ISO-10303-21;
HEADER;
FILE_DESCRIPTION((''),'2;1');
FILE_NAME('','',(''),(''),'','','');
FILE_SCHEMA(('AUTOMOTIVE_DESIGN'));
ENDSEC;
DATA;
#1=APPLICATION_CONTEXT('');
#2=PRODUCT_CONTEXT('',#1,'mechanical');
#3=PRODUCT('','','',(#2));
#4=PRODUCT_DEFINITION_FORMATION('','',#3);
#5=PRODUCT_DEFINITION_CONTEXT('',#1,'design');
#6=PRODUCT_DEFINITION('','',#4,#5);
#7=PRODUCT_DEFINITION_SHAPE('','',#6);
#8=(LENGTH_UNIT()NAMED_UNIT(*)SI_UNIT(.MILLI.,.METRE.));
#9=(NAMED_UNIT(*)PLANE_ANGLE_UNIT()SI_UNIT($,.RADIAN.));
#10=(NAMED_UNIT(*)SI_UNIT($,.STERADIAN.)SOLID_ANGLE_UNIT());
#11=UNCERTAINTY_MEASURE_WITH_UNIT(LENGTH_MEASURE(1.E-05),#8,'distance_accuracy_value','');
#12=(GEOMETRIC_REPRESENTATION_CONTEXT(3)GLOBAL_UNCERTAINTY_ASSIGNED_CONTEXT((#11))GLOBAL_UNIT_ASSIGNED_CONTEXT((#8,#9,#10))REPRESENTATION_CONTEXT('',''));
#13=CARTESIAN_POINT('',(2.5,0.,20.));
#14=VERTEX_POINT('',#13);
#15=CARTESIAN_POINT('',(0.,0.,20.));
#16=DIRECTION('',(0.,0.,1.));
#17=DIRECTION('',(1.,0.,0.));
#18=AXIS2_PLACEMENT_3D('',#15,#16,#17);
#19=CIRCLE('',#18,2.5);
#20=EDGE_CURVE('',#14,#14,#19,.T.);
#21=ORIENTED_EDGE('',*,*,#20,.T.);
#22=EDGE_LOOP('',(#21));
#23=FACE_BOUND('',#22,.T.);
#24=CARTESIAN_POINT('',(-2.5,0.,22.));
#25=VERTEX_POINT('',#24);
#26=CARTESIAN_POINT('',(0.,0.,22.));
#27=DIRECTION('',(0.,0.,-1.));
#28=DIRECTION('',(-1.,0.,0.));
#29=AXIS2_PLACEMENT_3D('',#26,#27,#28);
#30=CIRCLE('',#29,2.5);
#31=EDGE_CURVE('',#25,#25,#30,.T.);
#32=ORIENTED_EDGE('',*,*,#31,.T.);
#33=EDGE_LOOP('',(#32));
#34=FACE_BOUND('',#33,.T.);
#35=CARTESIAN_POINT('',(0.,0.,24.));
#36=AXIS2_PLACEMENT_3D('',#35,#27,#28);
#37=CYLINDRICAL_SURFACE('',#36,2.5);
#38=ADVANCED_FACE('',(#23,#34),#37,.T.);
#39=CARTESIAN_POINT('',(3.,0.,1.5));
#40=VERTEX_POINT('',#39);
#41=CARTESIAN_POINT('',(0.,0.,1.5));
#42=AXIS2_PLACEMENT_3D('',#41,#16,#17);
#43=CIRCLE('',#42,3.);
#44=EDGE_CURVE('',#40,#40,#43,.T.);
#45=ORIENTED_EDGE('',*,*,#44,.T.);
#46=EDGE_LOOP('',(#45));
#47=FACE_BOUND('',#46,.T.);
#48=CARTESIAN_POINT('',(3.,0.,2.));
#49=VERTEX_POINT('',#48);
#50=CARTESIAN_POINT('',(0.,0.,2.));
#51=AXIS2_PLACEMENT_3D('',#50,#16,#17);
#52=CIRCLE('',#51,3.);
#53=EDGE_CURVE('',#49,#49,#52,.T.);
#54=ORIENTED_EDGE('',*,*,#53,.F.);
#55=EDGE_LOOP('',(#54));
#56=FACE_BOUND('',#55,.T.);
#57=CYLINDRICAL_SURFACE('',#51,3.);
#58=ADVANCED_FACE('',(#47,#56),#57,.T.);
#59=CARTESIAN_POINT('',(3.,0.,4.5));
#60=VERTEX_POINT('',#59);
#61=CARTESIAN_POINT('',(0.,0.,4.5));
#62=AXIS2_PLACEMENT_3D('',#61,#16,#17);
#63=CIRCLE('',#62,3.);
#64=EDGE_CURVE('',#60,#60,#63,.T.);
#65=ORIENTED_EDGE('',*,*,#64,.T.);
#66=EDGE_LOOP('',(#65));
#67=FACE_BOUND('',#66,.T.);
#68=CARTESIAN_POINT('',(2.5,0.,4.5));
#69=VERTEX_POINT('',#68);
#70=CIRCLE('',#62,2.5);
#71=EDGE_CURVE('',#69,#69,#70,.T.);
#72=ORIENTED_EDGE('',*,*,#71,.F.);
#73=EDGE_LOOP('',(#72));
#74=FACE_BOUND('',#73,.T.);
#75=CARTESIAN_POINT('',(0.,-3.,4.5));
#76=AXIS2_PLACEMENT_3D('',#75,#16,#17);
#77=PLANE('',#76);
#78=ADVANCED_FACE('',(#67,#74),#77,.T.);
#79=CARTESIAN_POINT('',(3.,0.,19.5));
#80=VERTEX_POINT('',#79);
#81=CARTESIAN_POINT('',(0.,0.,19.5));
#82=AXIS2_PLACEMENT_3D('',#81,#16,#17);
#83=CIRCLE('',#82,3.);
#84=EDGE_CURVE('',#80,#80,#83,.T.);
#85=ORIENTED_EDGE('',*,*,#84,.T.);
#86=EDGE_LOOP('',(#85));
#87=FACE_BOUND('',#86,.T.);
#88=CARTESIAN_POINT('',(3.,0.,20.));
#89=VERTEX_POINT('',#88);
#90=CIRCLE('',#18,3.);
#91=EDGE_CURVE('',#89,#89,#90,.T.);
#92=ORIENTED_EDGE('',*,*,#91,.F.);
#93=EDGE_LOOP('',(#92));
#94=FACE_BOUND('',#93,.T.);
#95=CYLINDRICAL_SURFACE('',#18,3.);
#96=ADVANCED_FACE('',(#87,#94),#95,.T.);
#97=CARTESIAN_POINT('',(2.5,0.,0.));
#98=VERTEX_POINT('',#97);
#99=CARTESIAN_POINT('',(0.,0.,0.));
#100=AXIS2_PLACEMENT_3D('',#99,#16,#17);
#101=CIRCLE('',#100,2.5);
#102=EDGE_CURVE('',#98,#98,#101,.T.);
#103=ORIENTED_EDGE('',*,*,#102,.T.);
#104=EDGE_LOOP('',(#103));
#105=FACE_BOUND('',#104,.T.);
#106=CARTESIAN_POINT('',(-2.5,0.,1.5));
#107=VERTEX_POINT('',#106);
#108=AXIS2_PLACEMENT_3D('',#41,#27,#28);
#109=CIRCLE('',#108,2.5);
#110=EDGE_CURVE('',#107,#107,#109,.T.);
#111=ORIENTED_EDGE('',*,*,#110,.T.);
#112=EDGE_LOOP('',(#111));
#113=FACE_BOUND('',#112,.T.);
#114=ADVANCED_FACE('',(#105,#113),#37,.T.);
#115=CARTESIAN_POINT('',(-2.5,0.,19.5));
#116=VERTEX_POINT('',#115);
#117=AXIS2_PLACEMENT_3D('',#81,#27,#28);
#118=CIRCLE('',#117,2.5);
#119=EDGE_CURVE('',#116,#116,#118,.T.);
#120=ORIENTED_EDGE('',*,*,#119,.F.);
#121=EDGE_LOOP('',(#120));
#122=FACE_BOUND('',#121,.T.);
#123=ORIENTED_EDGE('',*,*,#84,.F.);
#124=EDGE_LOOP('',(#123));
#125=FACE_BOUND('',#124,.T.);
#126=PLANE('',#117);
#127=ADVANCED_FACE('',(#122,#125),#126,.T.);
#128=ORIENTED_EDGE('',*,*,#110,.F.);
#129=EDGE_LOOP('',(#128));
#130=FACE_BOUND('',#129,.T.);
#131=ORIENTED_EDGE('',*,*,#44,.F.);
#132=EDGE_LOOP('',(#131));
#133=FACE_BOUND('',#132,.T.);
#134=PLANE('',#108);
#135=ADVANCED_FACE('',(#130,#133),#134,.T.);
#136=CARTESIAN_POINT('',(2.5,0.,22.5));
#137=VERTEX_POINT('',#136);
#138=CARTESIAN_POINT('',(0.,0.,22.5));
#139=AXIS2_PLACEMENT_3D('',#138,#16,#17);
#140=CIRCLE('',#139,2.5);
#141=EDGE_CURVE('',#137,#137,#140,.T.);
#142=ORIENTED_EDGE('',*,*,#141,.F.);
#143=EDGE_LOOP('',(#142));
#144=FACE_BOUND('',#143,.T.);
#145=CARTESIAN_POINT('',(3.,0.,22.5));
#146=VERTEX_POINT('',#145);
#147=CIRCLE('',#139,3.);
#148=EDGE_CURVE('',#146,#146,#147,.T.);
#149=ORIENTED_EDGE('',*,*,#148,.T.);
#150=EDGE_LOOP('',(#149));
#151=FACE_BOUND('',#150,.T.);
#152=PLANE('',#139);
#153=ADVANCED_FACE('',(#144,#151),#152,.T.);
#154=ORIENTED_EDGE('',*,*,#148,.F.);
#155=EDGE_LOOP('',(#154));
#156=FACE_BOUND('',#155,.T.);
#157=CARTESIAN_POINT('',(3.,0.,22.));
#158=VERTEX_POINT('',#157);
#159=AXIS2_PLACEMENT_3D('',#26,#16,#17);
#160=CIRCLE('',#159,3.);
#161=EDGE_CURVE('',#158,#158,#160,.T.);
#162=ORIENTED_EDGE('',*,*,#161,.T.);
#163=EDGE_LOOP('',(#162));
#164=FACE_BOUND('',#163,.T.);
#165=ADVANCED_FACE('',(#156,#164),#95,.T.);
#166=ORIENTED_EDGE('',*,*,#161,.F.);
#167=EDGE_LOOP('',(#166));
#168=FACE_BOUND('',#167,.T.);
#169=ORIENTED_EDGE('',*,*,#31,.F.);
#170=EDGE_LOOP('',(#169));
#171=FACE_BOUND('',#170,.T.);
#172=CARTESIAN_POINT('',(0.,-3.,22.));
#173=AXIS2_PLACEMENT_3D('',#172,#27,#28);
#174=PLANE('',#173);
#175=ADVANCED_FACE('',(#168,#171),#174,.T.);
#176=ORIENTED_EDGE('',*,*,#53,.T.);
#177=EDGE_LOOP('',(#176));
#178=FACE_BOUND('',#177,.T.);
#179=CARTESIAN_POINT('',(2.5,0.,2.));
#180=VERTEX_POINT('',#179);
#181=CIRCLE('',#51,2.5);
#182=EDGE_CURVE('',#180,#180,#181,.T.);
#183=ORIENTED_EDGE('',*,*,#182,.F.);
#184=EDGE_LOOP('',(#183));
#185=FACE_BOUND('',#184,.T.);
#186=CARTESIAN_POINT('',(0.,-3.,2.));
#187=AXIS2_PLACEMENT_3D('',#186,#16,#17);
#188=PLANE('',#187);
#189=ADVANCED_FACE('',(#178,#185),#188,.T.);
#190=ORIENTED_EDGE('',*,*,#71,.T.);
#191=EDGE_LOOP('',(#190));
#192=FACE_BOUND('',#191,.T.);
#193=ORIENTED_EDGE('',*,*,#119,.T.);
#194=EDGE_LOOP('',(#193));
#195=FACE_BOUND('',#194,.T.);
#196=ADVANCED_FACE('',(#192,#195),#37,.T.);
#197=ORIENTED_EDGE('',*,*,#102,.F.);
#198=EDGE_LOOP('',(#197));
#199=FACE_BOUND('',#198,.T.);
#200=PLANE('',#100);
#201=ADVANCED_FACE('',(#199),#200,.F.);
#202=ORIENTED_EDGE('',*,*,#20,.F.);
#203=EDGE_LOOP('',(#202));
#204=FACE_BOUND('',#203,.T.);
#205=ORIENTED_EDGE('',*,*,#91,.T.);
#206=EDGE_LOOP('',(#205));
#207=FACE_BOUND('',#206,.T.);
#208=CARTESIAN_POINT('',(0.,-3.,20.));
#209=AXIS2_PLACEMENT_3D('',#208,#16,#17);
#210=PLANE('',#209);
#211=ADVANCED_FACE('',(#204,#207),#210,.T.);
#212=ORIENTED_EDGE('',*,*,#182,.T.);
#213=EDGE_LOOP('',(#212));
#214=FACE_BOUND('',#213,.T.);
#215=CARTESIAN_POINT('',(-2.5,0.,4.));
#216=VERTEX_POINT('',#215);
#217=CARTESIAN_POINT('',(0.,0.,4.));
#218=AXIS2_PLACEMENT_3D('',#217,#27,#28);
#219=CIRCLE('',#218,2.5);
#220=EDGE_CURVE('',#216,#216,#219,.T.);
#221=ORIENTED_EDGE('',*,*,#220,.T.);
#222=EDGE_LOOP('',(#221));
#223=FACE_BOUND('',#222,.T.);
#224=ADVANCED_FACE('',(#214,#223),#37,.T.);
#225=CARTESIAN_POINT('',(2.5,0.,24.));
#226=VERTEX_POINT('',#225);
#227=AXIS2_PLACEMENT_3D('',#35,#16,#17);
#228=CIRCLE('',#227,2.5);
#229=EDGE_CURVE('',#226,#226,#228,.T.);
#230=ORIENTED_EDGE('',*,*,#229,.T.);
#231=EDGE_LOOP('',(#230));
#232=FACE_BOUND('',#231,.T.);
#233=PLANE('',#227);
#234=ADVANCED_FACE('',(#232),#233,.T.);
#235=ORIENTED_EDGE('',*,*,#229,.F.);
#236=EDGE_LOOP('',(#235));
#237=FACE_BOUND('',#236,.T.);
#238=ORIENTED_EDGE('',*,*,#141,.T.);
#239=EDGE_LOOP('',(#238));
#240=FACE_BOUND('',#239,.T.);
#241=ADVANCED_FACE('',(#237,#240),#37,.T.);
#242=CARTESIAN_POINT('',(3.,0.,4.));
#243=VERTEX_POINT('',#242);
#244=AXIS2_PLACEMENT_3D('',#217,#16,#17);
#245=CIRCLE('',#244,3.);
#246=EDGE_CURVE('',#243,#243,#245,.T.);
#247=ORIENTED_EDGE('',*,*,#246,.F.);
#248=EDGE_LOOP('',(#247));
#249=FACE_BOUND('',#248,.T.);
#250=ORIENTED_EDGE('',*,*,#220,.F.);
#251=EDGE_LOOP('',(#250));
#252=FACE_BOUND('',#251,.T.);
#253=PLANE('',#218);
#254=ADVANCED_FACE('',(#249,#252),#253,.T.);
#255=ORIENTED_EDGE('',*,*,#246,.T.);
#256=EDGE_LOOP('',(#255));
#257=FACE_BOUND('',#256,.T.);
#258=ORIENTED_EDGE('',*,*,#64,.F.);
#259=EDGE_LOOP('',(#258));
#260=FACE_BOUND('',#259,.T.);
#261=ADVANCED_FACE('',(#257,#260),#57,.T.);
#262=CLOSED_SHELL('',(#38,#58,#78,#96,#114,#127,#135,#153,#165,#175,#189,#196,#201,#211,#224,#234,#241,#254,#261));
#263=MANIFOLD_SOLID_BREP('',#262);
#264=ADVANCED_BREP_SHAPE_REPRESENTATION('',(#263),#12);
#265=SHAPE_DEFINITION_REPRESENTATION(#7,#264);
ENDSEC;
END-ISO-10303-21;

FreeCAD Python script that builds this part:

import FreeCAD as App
import Part
import Sketcher

doc = App.newDocument("Part")
body = doc.addObject("PartDesign::Body", "Body")

# Sketch on XY plane
sketch1 = body.newObject("Sketcher::SketchObject", "Sketch")
sketch1.AttachmentSupport = (doc.getObject("XY_Plane"), [""])
sketch1.MapMode = "FlatFace"
sketch1.addGeometry(Part.Circle(App.Vector(0, 0, 0), App.Vector(0, 0, 1), 2.5), False)
sketch1.addConstraint([
    Sketcher.Constraint("Coincident", 0, 3, -1, 1),
    Sketcher.Constraint("Diameter", 0, 5.0),
])
pad1 = body.newObject("PartDesign::Pad", "Pad")
pad1.Profile = sketch1
pad1.Length = 24

# Sketch on YZ plane
sketch2 = body.newObject("Sketcher::SketchObject", "Sketch001")
sketch2.AttachmentSupport = (doc.getObject("YZ_Plane"), [""])
sketch2.MapMode = "FlatFace"
sketch2.addGeometry([
    Part.LineSegment(App.Vector(0, 2, 0), App.Vector(-3, 2, 0)),  # 0
    Part.LineSegment(App.Vector(-3, 2, 0), App.Vector(-3, 1.5, 0)),  # 1
    Part.LineSegment(App.Vector(-3, 1.5, 0), App.Vector(0, 1.5, 0)),  # 2
    Part.LineSegment(App.Vector(0, 1.5, 0), App.Vector(0, 2, 0)),  # 3
    Part.LineSegment(App.Vector(0, 4.5, 0), App.Vector(-3, 4.5, 0)),  # 4
    Part.LineSegment(App.Vector(-3, 4.5, 0), App.Vector(-3, 4, 0)),  # 5
    Part.LineSegment(App.Vector(-3, 4, 0), App.Vector(0, 4, 0)),  # 6
    Part.LineSegment(App.Vector(0, 4, 0), App.Vector(0, 4.5, 0)),  # 7
], False)
sketch2.addConstraint([
    Sketcher.Constraint("Coincident", 0, 2, 1, 1),
    Sketcher.Constraint("Coincident", 1, 2, 2, 1),
    Sketcher.Constraint("Coincident", 2, 2, 3, 1),
    Sketcher.Constraint("Coincident", 3, 2, 0, 1),
    Sketcher.Constraint("Coincident", 4, 2, 5, 1),
    Sketcher.Constraint("Coincident", 5, 2, 6, 1),
    Sketcher.Constraint("Coincident", 6, 2, 7, 1),
    Sketcher.Constraint("Coincident", 7, 2, 4, 1),
    Sketcher.Constraint("Horizontal", 0),
    Sketcher.Constraint("Vertical", 1),
    Sketcher.Constraint("Horizontal", 2),
    Sketcher.Constraint("Vertical", 3),
    Sketcher.Constraint("Horizontal", 4),
    Sketcher.Constraint("Vertical", 5),
    Sketcher.Constraint("Horizontal", 6),
    Sketcher.Constraint("Vertical", 7),
    Sketcher.Constraint("PointOnObject", 2, 2, -2),
    Sketcher.Constraint("PointOnObject", 6, 2, -2),
    Sketcher.Constraint("Vertical", 1, 2, 4, 2),
    Sketcher.Constraint("Equal", 3, 5),
    Sketcher.Constraint("DistanceX", 0, 2, 0, 1, 3.0),
    Sketcher.Constraint("DistanceY", 1, 2, 1, 1, 0.5),
    Sketcher.Constraint("DistanceY", -1, 1, 0, 2, 2.0),
    Sketcher.Constraint("DistanceY", -1, 1, 5, 2, 4.0),
])
revolution = body.newObject("PartDesign::Revolution", "Revolution")
revolution.Profile = sketch2
revolution.ReferenceAxis = (sketch2, ["V_Axis"])
revolution.Angle = 360

# Sketch on YZ plane
sketch3 = body.newObject("Sketcher::SketchObject", "Sketch002")
sketch3.AttachmentSupport = (doc.getObject("YZ_Plane"), [""])
sketch3.MapMode = "FlatFace"
sketch3.addGeometry([
    Part.LineSegment(App.Vector(0, 20, 0), App.Vector(-3, 20, 0)),  # 0
    Part.LineSegment(App.Vector(-3, 20, 0), App.Vector(-3, 19.5, 0)),  # 1
    Part.LineSegment(App.Vector(-3, 19.5, 0), App.Vector(0, 19.5, 0)),  # 2
    Part.LineSegment(App.Vector(0, 19.5, 0), App.Vector(0, 20, 0)),  # 3
    Part.LineSegment(App.Vector(0, 22.5, 0), App.Vector(-3, 22.5, 0)),  # 4
    Part.LineSegment(App.Vector(-3, 22.5, 0), App.Vector(-3, 22, 0)),  # 5
    Part.LineSegment(App.Vector(-3, 22, 0), App.Vector(0, 22, 0)),  # 6
    Part.LineSegment(App.Vector(0, 22, 0), App.Vector(0, 22.5, 0)),  # 7
], False)
sketch3.addConstraint([
    Sketcher.Constraint("Coincident", 0, 2, 1, 1),
    Sketcher.Constraint("Coincident", 1, 2, 2, 1),
    Sketcher.Constraint("Coincident", 2, 2, 3, 1),
    Sketcher.Constraint("Coincident", 3, 2, 0, 1),
    Sketcher.Constraint("Coincident", 4, 2, 5, 1),
    Sketcher.Constraint("Coincident", 5, 2, 6, 1),
    Sketcher.Constraint("Coincident", 6, 2, 7, 1),
    Sketcher.Constraint("Coincident", 7, 2, 4, 1),
    Sketcher.Constraint("Horizontal", 0),
    Sketcher.Constraint("Vertical", 1),
    Sketcher.Constraint("Horizontal", 2),
    Sketcher.Constraint("Vertical", 3),
    Sketcher.Constraint("Horizontal", 4),
    Sketcher.Constraint("Vertical", 5),
    Sketcher.Constraint("Horizontal", 6),
    Sketcher.Constraint("Vertical", 7),
    Sketcher.Constraint("PointOnObject", 2, 2, -2),
    Sketcher.Constraint("PointOnObject", 6, 2, -2),
    Sketcher.Constraint("Vertical", 1, 2, 4, 2),
    Sketcher.Constraint("Equal", 3, 5),
    Sketcher.Constraint("DistanceX", 0, 2, 0, 1, 3.0),
    Sketcher.Constraint("DistanceY", 1, 2, 1, 1, 0.5),
    Sketcher.Constraint("DistanceY", -1, 1, 0, 2, 20.0),
    Sketcher.Constraint("DistanceY", -1, 1, 5, 2, 22.0),
])
revolution2 = body.newObject("PartDesign::Revolution", "Revolution001")
revolution2.Profile = sketch3
revolution2.ReferenceAxis = (sketch3, ["V_Axis"])
revolution2.Angle = 360

doc.recompute()
